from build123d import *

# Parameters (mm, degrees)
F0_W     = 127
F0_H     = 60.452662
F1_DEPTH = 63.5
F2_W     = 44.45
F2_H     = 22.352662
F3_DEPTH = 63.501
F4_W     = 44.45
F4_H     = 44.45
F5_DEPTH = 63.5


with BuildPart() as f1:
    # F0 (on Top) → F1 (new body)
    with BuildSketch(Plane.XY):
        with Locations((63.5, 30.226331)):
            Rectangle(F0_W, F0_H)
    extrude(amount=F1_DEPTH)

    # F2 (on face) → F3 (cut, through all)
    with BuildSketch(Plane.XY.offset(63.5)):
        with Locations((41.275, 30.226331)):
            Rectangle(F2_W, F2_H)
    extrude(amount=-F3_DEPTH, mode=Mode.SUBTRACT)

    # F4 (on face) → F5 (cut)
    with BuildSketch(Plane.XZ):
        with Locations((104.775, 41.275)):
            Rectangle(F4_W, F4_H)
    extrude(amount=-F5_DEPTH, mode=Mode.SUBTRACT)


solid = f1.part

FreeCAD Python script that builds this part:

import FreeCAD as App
import Part
import Sketcher
Q = App.Units.Quantity

doc = App.newDocument("Part")
body = doc.addObject("PartDesign::Body", "Body")

# Sketch on XY plane
sketch1 = doc.addObject("Sketcher::SketchObject", "Sketch")
body.addObject(sketch1)
sketch1.AttachmentSupport = (doc.XY_Plane, [""])
sketch1.MapMode = "FlatFace"
sketch1.addGeometry(Part.LineSegment(App.Vector(0, 60.452662, 0), App.Vector(0, 0, 0)), False)
sketch1.addGeometry(Part.LineSegment(App.Vector(0, 0, 0), App.Vector(127, 0, 0)), False)
sketch1.addGeometry(Part.LineSegment(App.Vector(127, 0, 0), App.Vector(127, 60.452662, 0)), False)
sketch1.addGeometry(Part.LineSegment(App.Vector(127, 60.452662, 0), App.Vector(0, 60.452662, 0)), False)
sketch1.addConstraint(Sketcher.Constraint("Coincident", 0, 2, 1, 1))
sketch1.addConstraint(Sketcher.Constraint("Coincident", 1, 2, 2, 1))
sketch1.addConstraint(Sketcher.Constraint("Coincident", 2, 2, 3, 1))
sketch1.addConstraint(Sketcher.Constraint("Coincident", 3, 2, 0, 1))
sketch1.addConstraint(Sketcher.Constraint("Vertical", 0))
sketch1.addConstraint(Sketcher.Constraint("Horizontal", 1))
sketch1.addConstraint(Sketcher.Constraint("Vertical", 2))
sketch1.addConstraint(Sketcher.Constraint("Horizontal", 3))
sketch1.addConstraint(Sketcher.Constraint("Coincident", 0, 2, -1, 1))
sketch1.addConstraint(Sketcher.Constraint("DistanceX", 1, 1, 1, 2, Q("5 in")))
sketch1.addConstraint(Sketcher.Constraint("DistanceY", 0, 2, 0, 1, Q("60.452662 mm")))
pad1 = doc.addObject("PartDesign::Pad", "Pad")
body.addObject(pad1)
pad1.Profile = sketch1
pad1.Length = Q("2.5 in")

# Sketch on XY plane
sketch2 = doc.addObject("Sketcher::SketchObject", "Sketch001")
body.addObject(sketch2)
sketch2.AttachmentSupport = (doc.XY_Plane, [""])
sketch2.MapMode = "FlatFace"
sketch2.AttachmentOffset = App.Placement(App.Vector(0, 0, 2.5 * 25.4), App.Rotation())
sketch2.addGeometry(Part.LineSegment(App.Vector(19.05, 41.402662, 0), App.Vector(19.05, 19.05, 0)), False)
sketch2.addGeometry(Part.LineSegment(App.Vector(19.05, 19.05, 0), App.Vector(63.5, 19.05, 0)), False)
sketch2.addGeometry(Part.LineSegment(App.Vector(63.5, 19.05, 0), App.Vector(63.5, 41.402662, 0)), False)
sketch2.addGeometry(Part.LineSegment(App.Vector(63.5, 41.402662, 0), App.Vector(19.05, 41.402662, 0)), False)
sketch2.addConstraint(Sketcher.Constraint("Coincident", 0, 2, 1, 1))
sketch2.addConstraint(Sketcher.Constraint("Coincident", 1, 2, 2, 1))
sketch2.addConstraint(Sketcher.Constraint("Coincident", 2, 2, 3, 1))
sketch2.addConstraint(Sketcher.Constraint("Coincident", 3, 2, 0, 1))
sketch2.addConstraint(Sketcher.Constraint("Vertical", 0))
sketch2.addConstraint(Sketcher.Constraint("Horizontal", 1))
sketch2.addConstraint(Sketcher.Constraint("Vertical", 2))
sketch2.addConstraint(Sketcher.Constraint("Horizontal", 3))
sketch2.addConstraint(Sketcher.Constraint("DistanceX", 1, 1, 1, 2, Q("1.75 in")))
sketch2.addConstraint(Sketcher.Constraint("DistanceX", -1, 1, 1, 2, Q("2.5 in")))
sketch2.addConstraint(Sketcher.Constraint("DistanceY", -1, 1, 0, 2, Q("0.75 in")))
sketch2.addConstraint(Sketcher.Constraint("DistanceY", 0, 2, 0, 1, Q("22.352662 mm")))
pocket1 = doc.addObject("PartDesign::Pocket", "Pocket")
body.addObject(pocket1)
pocket1.Profile = sketch2
pocket1.Type = "ThroughAll"

# Sketch on XZ plane
sketch3 = doc.addObject("Sketcher::SketchObject", "Sketch002")
body.addObject(sketch3)
sketch3.AttachmentSupport = (doc.XZ_Plane, [""])
sketch3.MapMode = "FlatFace"
sketch3.addGeometry(Part.LineSegment(App.Vector(82.55, 63.5, 0), App.Vector(82.55, 19.05, 0)), False)
sketch3.addGeometry(Part.LineSegment(App.Vector(82.55, 19.05, 0), App.Vector(127, 19.05, 0)), False)
sketch3.addGeometry(Part.LineSegment(App.Vector(127, 19.05, 0), App.Vector(127, 63.5, 0)), False)
sketch3.addGeometry(Part.LineSegment(App.Vector(127, 63.5, 0), App.Vector(82.55, 63.5, 0)), False)
sketch3.addConstraint(Sketcher.Constraint("Coincident", 0, 2, 1, 1))
sketch3.addConstraint(Sketcher.Constraint("Coincident", 1, 2, 2, 1))
sketch3.addConstraint(Sketcher.Constraint("Coincident", 2, 2, 3, 1))
sketch3.addConstraint(Sketcher.Constraint("Coincident", 3, 2, 0, 1))
sketch3.addConstraint(Sketcher.Constraint("Vertical", 0))
sketch3.addConstraint(Sketcher.Constraint("Horizontal", 1))
sketch3.addConstraint(Sketcher.Constraint("Vertical", 2))
sketch3.addConstraint(Sketcher.Constraint("Horizontal", 3))
sketch3.addConstraint(Sketcher.Constraint("Equal", 3, 0))
sketch3.addConstraint(Sketcher.Constraint("DistanceX", -1, 1, 1, 2, Q("5 in")))
sketch3.addConstraint(Sketcher.Constraint("DistanceX", 1, 1, 1, 2, Q("1.75 in")))
sketch3.addConstraint(Sketcher.Constraint("DistanceY", -1, 1, 2, 2, Q("2.5 in")))
pocket2 = doc.addObject("PartDesign::Pocket", "Pocket001")
body.addObject(pocket2)
pocket2.Profile = sketch3
pocket2.Length = Q("2.5 in")

doc.recompute()
